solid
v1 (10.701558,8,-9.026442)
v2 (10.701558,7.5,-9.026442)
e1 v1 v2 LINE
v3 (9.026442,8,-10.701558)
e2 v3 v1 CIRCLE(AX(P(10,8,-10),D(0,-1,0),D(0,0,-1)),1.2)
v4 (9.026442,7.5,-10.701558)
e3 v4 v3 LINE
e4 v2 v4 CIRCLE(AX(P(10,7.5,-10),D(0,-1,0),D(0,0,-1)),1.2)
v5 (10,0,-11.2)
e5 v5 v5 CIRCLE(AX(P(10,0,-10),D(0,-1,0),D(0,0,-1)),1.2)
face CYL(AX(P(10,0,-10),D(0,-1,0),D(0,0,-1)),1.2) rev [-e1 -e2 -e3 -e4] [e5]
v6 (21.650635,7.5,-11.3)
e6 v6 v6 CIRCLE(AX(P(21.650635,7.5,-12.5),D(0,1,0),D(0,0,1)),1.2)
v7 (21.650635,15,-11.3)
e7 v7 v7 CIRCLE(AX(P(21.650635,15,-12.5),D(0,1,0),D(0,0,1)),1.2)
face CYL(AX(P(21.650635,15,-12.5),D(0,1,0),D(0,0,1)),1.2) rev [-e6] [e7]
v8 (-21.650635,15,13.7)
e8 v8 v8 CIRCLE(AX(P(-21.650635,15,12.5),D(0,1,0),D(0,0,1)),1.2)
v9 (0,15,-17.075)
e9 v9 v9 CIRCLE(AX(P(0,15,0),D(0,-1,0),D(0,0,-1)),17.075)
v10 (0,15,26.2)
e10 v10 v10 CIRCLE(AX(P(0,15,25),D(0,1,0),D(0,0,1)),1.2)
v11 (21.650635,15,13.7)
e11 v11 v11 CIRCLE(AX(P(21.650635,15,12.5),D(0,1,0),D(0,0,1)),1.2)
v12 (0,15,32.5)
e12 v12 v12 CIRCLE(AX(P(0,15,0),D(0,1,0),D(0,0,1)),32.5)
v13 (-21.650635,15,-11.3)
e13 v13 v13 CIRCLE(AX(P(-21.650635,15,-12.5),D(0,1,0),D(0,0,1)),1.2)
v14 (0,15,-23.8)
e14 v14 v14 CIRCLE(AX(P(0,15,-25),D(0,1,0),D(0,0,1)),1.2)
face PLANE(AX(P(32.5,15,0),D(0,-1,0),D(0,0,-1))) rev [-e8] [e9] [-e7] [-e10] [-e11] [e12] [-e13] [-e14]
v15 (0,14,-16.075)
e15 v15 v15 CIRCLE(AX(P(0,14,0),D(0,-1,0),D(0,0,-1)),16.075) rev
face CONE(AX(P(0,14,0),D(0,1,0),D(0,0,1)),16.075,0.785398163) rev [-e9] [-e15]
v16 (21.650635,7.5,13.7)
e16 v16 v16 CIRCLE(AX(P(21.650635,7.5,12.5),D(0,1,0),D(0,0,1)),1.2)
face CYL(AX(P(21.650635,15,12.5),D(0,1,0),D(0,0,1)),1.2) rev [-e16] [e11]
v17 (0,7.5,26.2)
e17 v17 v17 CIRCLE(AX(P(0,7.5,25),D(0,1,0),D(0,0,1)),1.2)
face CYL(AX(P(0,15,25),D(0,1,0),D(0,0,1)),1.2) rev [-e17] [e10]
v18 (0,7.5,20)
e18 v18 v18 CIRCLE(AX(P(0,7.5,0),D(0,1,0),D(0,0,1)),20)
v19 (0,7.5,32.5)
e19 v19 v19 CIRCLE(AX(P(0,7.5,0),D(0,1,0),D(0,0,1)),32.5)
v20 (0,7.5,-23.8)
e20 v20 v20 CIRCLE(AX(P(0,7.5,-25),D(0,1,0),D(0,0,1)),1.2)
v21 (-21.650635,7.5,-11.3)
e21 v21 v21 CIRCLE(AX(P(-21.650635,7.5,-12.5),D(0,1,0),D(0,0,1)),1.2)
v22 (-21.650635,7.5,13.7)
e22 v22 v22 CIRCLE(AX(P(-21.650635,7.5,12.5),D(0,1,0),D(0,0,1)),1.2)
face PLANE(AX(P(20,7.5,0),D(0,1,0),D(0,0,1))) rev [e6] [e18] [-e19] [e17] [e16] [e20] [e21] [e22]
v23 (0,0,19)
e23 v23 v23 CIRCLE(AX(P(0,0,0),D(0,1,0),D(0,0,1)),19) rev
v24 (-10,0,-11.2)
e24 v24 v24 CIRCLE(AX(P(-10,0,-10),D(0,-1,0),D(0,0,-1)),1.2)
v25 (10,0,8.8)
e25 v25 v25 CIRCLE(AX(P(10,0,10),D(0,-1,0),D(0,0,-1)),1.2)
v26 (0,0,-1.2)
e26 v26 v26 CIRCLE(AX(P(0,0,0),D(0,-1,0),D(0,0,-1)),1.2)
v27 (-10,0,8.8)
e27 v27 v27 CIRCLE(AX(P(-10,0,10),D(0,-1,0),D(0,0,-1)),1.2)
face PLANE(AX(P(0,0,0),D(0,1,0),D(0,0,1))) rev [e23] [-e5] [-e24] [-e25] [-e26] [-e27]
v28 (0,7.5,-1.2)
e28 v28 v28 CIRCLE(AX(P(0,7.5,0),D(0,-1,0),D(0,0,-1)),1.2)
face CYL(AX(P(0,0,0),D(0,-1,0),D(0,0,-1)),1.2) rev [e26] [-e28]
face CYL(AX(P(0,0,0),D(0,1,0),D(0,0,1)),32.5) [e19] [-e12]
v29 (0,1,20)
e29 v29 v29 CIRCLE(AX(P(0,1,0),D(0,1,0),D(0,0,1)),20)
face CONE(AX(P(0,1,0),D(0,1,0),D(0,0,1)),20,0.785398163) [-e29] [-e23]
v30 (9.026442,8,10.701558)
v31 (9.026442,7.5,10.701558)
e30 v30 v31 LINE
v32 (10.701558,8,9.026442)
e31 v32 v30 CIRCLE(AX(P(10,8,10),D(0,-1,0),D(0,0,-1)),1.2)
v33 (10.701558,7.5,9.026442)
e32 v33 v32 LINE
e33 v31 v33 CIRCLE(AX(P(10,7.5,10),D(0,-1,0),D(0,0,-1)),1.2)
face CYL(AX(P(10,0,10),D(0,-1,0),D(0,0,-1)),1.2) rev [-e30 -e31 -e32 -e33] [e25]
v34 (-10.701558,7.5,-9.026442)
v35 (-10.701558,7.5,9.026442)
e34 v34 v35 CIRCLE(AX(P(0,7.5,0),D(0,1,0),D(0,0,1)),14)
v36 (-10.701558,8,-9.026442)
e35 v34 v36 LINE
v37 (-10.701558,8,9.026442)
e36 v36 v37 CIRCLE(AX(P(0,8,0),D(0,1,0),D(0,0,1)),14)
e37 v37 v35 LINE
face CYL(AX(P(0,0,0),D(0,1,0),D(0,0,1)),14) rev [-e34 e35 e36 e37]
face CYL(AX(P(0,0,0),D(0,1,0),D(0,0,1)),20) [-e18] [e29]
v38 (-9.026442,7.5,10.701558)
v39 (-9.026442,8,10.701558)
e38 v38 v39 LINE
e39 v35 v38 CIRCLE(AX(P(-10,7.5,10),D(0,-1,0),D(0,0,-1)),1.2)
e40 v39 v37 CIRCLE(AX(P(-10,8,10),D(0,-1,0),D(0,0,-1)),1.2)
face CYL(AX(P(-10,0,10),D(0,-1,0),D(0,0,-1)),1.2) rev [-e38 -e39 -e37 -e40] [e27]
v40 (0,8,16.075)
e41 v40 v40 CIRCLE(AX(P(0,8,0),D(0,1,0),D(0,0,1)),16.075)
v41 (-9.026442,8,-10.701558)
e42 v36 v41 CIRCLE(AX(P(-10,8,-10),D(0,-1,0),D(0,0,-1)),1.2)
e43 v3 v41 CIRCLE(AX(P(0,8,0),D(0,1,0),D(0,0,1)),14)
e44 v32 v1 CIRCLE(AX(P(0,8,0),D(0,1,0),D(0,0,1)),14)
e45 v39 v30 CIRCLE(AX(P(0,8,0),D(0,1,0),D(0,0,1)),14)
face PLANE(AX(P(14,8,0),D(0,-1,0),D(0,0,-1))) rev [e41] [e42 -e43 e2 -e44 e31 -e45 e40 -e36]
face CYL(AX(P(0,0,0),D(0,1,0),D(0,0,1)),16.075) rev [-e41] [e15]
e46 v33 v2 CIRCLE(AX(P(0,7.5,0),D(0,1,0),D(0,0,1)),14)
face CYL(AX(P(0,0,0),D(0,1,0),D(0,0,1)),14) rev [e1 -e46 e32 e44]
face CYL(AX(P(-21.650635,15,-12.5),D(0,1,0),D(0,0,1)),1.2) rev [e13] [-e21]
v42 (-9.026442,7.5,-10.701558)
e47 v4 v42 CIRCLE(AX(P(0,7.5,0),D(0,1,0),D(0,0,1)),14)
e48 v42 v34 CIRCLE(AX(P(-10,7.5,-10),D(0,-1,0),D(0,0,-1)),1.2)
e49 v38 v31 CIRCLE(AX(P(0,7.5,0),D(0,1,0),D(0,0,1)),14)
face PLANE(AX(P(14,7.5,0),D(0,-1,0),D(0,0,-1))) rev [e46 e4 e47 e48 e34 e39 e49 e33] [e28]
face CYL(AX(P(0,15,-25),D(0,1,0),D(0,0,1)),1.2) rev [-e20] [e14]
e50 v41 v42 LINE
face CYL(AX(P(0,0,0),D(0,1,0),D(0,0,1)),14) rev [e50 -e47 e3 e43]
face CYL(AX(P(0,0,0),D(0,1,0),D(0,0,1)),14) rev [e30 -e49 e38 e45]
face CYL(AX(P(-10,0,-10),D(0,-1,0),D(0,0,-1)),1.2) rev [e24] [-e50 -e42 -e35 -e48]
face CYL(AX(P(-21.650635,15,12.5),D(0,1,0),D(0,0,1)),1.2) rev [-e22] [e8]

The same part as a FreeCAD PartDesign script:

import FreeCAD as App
import Part
import Sketcher

V = App.Vector
Q = App.Units.Quantity


def edges_at(feature, points):
    """Names of the edges that pass closest to the given points."""
    edges = feature.Shape.Edges
    near = lambda p: min(range(len(edges)), key=lambda i: edges[i].distToShape(Part.Vertex(*p))[0])
    return sorted({f"Edge{near(p) + 1}" for p in points})


def add_polygon(sketch, points):
    """Adds a closed chain of lines whose ends are joined by coincident constraints."""
    first, n = sketch.GeometryCount, len(points)
    for a, b in zip(points, points[1:] + points[:1]):
        sketch.addGeometry(Part.LineSegment(App.Vector(*a, 0), App.Vector(*b, 0)), False)
    for i in range(n):
        sketch.addConstraint(Sketcher.Constraint("Coincident", first + i, 2, first + (i + 1) % n, 1))

doc = App.newDocument("Part")
params = doc.addObject("Spreadsheet::Sheet", "Params")
for row, (alias, value) in enumerate([
    ("sketch1_width", "20 mm"),
    ("sketch1_width2", "14 mm"),
    ("sketch1_height", "7 mm"),
    ("sketch1_width3", "12.5 mm"),
    ("sketch1_height2", "7.5 mm"),
    ("revolution_angle", "360 deg"),
    ("sketch2_diameter", "2.4 mm"),
    ("hole_diameter", "2.4 mm"),
    ("sketch3_diameter", "2.4 mm"),
    ("hole2_diameter", "2.4 mm"),
    ("chamfer_size", "1 mm"),
    ("chamfer2_size", "1 mm"),
], start=1):
    params.set(f"A{row}", alias)
    params.set(f"B{row}", "=" + value)
    params.setAlias(f"B{row}", alias)

body = doc.addObject("PartDesign::Body", "Body")

sketch1 = body.newObject("Sketcher::SketchObject", "Sketch")
sketch1.AttachmentSupport = (doc.getObject("XY_Plane"), [""])
sketch1.MapMode = "FlatFace"
add_polygon(sketch1, [(0, 0), (20, 0), (20, 7.5), (32.5, 7.5), (32.5, 15), (16.075, 15), (16.075, 8), (14, 8), (14, 7.5), (0, 7.5)])
sketch1.addConstraint(Sketcher.Constraint("Horizontal", 0))
sketch1.addConstraint(Sketcher.Constraint("Vertical", 1))
sketch1.addConstraint(Sketcher.Constraint("Horizontal", 2))
sketch1.addConstraint(Sketcher.Constraint("Vertical", 3))
sketch1.addConstraint(Sketcher.Constraint("Horizontal", 4))
sketch1.addConstraint(Sketcher.Constraint("Vertical", 5))
sketch1.addConstraint(Sketcher.Constraint("Horizontal", 6))
sketch1.addConstraint(Sketcher.Constraint("Vertical", 7))
sketch1.addConstraint(Sketcher.Constraint("Horizontal", 8))
sketch1.addConstraint(Sketcher.Constraint("Vertical", 9))
sketch1.addConstraint(Sketcher.Constraint("Coincident", 9, 2, -1, 1))
sketch1.addConstraint(Sketcher.Constraint("Horizontal", 2, 2, 7, 2))
sketch1.addConstraint(Sketcher.Constraint("Equal", 1, 3))
sketch1.addConstraint(Sketcher.Constraint("DistanceX", 0, 1, 0, 2, Q("20 mm")))
sketch1.addConstraint(Sketcher.Constraint("DistanceX", 8, 2, 8, 1, Q("14 mm")))
sketch1.addConstraint(Sketcher.Constraint("DistanceY", 5, 2, 5, 1, Q("7 mm")))
sketch1.addConstraint(Sketcher.Constraint("DistanceX", 2, 1, 2, 2, Q("12.5 mm")))
sketch1.addConstraint(Sketcher.Constraint("DistanceY", 1, 1, 1, 2, Q("7.5 mm")))
sketch1.addConstraint(Sketcher.Constraint("DistanceX", 4, 2, 4, 1, Q("16.425 mm")))
sketch1.setExpression("Constraints[23]", "Params.sketch1_width")
sketch1.setExpression("Constraints[24]", "Params.sketch1_width2")
sketch1.setExpression("Constraints[25]", "Params.sketch1_height")
sketch1.setExpression("Constraints[26]", "Params.sketch1_width3")
sketch1.setExpression("Constraints[27]", "Params.sketch1_height2")
revolution = body.newObject("PartDesign::Revolution", "Revolution")
revolution.Profile = sketch1
revolution.ReferenceAxis = (sketch1, ["V_Axis"])
revolution.setExpression("Angle", "Params.revolution_angle")

sketch2 = body.newObject("Sketcher::SketchObject", "Sketch001")
sketch2.AttachmentSupport = (doc.getObject("XZ_Plane"), [""])
sketch2.MapMode = "FlatFace"
sketch2.AttachmentOffset = App.Placement(V(0, 0, -15), App.Rotation())
sketch2.addGeometry(Part.Circle(V(0, -25, 0), V(0, 0, 1), 1.2), False)
sketch2.addConstraint(Sketcher.Constraint("PointOnObject", 0, 3, -2))
sketch2.addConstraint(Sketcher.Constraint("Diameter", 0, Q("2.4 mm")))
sketch2.addConstraint(Sketcher.Constraint("DistanceY", 0, 3, -1, 1, Q("25 mm")))
sketch2.setExpression("Constraints[1]", "Params.sketch2_diameter")
doc.recompute()
hole = body.newObject("PartDesign::Hole", "Hole")
hole.Profile = sketch2
hole.ThreadType = "None"
hole.setExpression("Diameter", "Params.hole_diameter")
hole.DepthType = "ThroughAll"
hole.Reversed = True
doc.recompute()

polarpattern = body.newObject("PartDesign::PolarPattern", "PolarPattern")
polarpattern.Originals = [hole]
polarpattern.Axis = (doc.getObject("Y_Axis"), [""])
polarpattern.Angle = 360
polarpattern.Occurrences = 6
body.Tip = polarpattern

sketch3 = body.newObject("Sketcher::SketchObject", "Sketch002")
sketch3.AttachmentSupport = (doc.getObject("XZ_Plane"), [""])
sketch3.MapMode = "FlatFace"
sketch3.addGeometry(Part.Circle(V(0, 0, 0), V(0, 0, 1), 1.2), False)
sketch3.addGeometry(Part.Circle(V(-10, -10, 0), V(0, 0, 1), 1.2), False)
sketch3.addGeometry(Part.Circle(V(10, 10, 0), V(0, 0, 1), 1.2), False)
sketch3.addGeometry(Part.Circle(V(10, -10, 0), V(0, 0, 1), 1.2), False)
sketch3.addGeometry(Part.Circle(V(-10, 10, 0), V(0, 0, 1), 1.2), False)
sketch3.addConstraint(Sketcher.Constraint("Coincident", 0, 3, -1, 1))
sketch3.addConstraint(Sketcher.Constraint("Equal", 0, 1))
sketch3.addConstraint(Sketcher.Constraint("Equal", 1, 2))
sketch3.addConstraint(Sketcher.Constraint("Equal", 2, 3))
sketch3.addConstraint(Sketcher.Constraint("Equal", 3, 4))
sketch3.addConstraint(Sketcher.Constraint("Symmetric", 1, 3, 2, 3, -1, 1))
sketch3.addConstraint(Sketcher.Constraint("Symmetric", 3, 3, 4, 3, -1, 1))
sketch3.addConstraint(Sketcher.Constraint("Symmetric", 1, 3, 3, 3, -2))
sketch3.addConstraint(Sketcher.Constraint("Diameter", 0, Q("2.4 mm")))
sketch3.addConstraint(Sketcher.Constraint("DistanceX", 1, 3, -1, 1, Q("10 mm")))
sketch3.addConstraint(Sketcher.Constraint("DistanceY", 1, 3, -1, 1, Q("10 mm")))
sketch3.setExpression("Constraints[8]", "Params.sketch3_diameter")
doc.recompute()
hole2 = body.newObject("PartDesign::Hole", "Hole001")
hole2.Profile = sketch3
hole2.ThreadType = "None"
hole2.setExpression("Diameter", "Params.hole2_diameter")
hole2.DepthType = "ThroughAll"
doc.recompute()

chamfer = body.newObject("PartDesign::Chamfer", "Chamfer")
chamfer.Base = (hole2, edges_at(hole2, [(0, 15, -16.075)]))
chamfer.setExpression("Size", "Params.chamfer_size")
doc.recompute()

chamfer2 = body.newObject("PartDesign::Chamfer", "Chamfer001")
chamfer2.Base = (chamfer, edges_at(chamfer, [(0, 0, -20)]))
chamfer2.setExpression("Size", "Params.chamfer2_size")

doc.recompute()
